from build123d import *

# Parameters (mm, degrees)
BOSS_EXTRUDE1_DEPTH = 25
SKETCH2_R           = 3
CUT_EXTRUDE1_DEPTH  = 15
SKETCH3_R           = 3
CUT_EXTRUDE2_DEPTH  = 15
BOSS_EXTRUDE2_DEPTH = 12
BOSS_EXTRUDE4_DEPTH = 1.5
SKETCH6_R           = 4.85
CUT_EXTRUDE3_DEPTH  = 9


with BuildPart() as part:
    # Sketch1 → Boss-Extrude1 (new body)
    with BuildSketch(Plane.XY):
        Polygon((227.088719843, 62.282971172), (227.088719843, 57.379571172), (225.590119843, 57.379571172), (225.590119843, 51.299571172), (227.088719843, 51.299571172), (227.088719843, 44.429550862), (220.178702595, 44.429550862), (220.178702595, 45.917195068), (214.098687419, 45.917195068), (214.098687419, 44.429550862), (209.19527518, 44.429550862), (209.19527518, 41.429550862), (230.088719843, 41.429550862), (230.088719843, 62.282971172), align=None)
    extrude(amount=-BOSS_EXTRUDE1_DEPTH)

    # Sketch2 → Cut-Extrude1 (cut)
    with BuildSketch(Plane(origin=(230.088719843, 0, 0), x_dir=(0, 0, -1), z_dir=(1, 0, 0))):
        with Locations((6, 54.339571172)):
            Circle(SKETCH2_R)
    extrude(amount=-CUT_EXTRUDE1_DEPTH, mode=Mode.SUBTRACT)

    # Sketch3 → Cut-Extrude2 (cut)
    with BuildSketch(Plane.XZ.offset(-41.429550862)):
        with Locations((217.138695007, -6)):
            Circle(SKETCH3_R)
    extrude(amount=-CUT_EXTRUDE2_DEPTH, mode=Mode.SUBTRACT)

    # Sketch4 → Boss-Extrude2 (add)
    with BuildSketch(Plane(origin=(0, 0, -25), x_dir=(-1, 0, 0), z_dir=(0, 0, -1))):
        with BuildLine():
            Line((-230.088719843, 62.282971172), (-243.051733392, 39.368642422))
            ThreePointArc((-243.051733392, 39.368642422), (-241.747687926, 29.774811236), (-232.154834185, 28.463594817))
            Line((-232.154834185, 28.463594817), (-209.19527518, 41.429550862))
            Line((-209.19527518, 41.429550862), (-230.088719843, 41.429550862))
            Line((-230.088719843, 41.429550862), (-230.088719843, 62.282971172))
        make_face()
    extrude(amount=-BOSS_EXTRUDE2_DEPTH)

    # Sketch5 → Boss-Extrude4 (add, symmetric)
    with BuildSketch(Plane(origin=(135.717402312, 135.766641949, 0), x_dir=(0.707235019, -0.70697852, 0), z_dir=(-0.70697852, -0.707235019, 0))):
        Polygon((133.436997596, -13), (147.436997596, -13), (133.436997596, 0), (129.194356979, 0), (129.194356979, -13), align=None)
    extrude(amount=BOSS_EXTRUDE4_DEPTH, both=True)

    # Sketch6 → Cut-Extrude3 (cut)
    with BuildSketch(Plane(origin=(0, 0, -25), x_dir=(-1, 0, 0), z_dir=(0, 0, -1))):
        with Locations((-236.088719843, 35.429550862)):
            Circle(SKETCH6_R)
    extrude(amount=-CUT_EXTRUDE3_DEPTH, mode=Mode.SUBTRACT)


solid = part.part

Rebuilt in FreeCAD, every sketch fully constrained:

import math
import FreeCAD as App
import Part
import Sketcher
from FreeCAD import Vector
Q = App.Units.Quantity


def add_polygon(sketch, points):
    """Adds a closed chain of lines whose ends are joined by coincident constraints."""
    first, n = sketch.GeometryCount, len(points)
    for a, b in zip(points, points[1:] + points[:1]):
        sketch.addGeometry(Part.LineSegment(App.Vector(*a, 0), App.Vector(*b, 0)), False)
    for i in range(n):
        sketch.addConstraint(Sketcher.Constraint("Coincident", first + i, 2, first + (i + 1) % n, 1))

doc = App.newDocument("Part")
body = doc.addObject("PartDesign::Body", "Body")

# Sketch on XY plane
sketch1 = doc.addObject("Sketcher::SketchObject", "Sketch")
body.addObject(sketch1)
sketch1.AttachmentSupport = (doc.XY_Plane, [""])
sketch1.MapMode = "FlatFace"
add_polygon(sketch1, [(227.1, 62.3), (227.1, 57.4), (225.6, 57.4), (225.6, 51.3), (227.1, 51.3), (227.1, 44.4), (220.2, 44.4), (220.2, 45.9), (214.1, 45.9), (214.1, 44.4), (209.2, 44.4), (209.2, 41.4), (230.1, 41.4), (230.1, 62.3)])  # lines 0-13
sketch1.addConstraint(Sketcher.Constraint("Vertical", 0))
sketch1.addConstraint(Sketcher.Constraint("Horizontal", 1))
sketch1.addConstraint(Sketcher.Constraint("Vertical", 2))
sketch1.addConstraint(Sketcher.Constraint("Horizontal", 3))
sketch1.addConstraint(Sketcher.Constraint("Vertical", 4))
sketch1.addConstraint(Sketcher.Constraint("Horizontal", 5))
sketch1.addConstraint(Sketcher.Constraint("Vertical", 6))
sketch1.addConstraint(Sketcher.Constraint("Horizontal", 7))
sketch1.addConstraint(Sketcher.Constraint("Vertical", 8))
sketch1.addConstraint(Sketcher.Constraint("Horizontal", 9))
sketch1.addConstraint(Sketcher.Constraint("Vertical", 10))
sketch1.addConstraint(Sketcher.Constraint("Horizontal", 11))
sketch1.addConstraint(Sketcher.Constraint("Vertical", 12))
sketch1.addConstraint(Sketcher.Constraint("Horizontal", 13))
sketch1.addConstraint(Sketcher.Constraint("Horizontal", 5, 2, 8, 2))
sketch1.addConstraint(Sketcher.Constraint("Vertical", 0, 2, 3, 2))
sketch1.addConstraint(Sketcher.Constraint("Equal", 13, 10))
sketch1.addConstraint(Sketcher.Constraint("DistanceX", 13, 2, 13, 1, Q("3 mm")))
sketch1.addConstraint(Sketcher.Constraint("DistanceY", 2, 2, 2, 1, Q("6.08 mm")))
sketch1.addConstraint(Sketcher.Constraint("DistanceX", 1, 2, 1, 1, Q("1.4986 mm")))
sketch1.addConstraint(Sketcher.Constraint("DistanceY", 0, 2, 0, 1, Q("4.9034 mm")))
sketch1.addConstraint(Sketcher.Constraint("DistanceY", 4, 2, 4, 1, Q("6.87002 mm")))
sketch1.addConstraint(Sketcher.Constraint("DistanceX", 5, 2, 5, 1, Q("6.910017 mm")))
sketch1.addConstraint(Sketcher.Constraint("DistanceX", 7, 2, 7, 1, Q("6.080015 mm")))
sketch1.addConstraint(Sketcher.Constraint("DistanceX", 9, 2, 9, 1, Q("4.903412 mm")))
sketch1.addConstraint(Sketcher.Constraint("DistanceY", 6, 1, 6, 2, Q("1.487644 mm")))
sketch1.addConstraint(Sketcher.Constraint("DistanceX", -1, 1, 0, 2, Q("227.08872 mm")))
sketch1.addConstraint(Sketcher.Constraint("DistanceY", -1, 1, 0, 2, Q("57.379571 mm")))
pad1 = doc.addObject("PartDesign::Pad", "Pad")
body.addObject(pad1)
pad1.Profile = sketch1
pad1.Length = 25
pad1.Reversed = True

# Sketch on YZ plane
sketch2 = doc.addObject("Sketcher::SketchObject", "Sketch001")
body.addObject(sketch2)
sketch2.AttachmentSupport = (doc.YZ_Plane, [""])
sketch2.MapMode = "FlatFace"
sketch2.AttachmentOffset = App.Placement(Vector(0, 0, 230.08872), App.Rotation())
sketch2.addGeometry(Part.Circle(Vector(54.3, -6, 0), Vector(0, 0, 1), 3), False)
sketch2.addConstraint(Sketcher.Constraint("Diameter", 0, Q("6 mm")))
sketch2.addConstraint(Sketcher.Constraint("DistanceY", 0, 3, -1, 1, Q("6 mm")))
sketch2.addConstraint(Sketcher.Constraint("DistanceX", -1, 1, 0, 3, Q("54.339571 mm")))
pocket1 = doc.addObject("PartDesign::Pocket", "Pocket")
body.addObject(pocket1)
pocket1.Profile = sketch2
pocket1.Length = 15

# Sketch on XZ plane
sketch3 = doc.addObject("Sketcher::SketchObject", "Sketch002")
body.addObject(sketch3)
sketch3.AttachmentSupport = (doc.XZ_Plane, [""])
sketch3.MapMode = "FlatFace"
sketch3.AttachmentOffset = App.Placement(Vector(0, 0, -41.429551), App.Rotation())
sketch3.addGeometry(Part.Circle(Vector(217.1, -6, 0), Vector(0, 0, 1), 3), False)
sketch3.addConstraint(Sketcher.Constraint("Diameter", 0, Q("6 mm")))
sketch3.addConstraint(Sketcher.Constraint("DistanceY", 0, 3, -1, 1, Q("6 mm")))
sketch3.addConstraint(Sketcher.Constraint("DistanceX", -1, 1, 0, 3, Q("217.138695 mm")))
pocket2 = doc.addObject("PartDesign::Pocket", "Pocket001")
body.addObject(pocket2)
pocket2.Profile = sketch3
pocket2.Length = 15

# Sketch on XY plane
sketch4 = doc.addObject("Sketcher::SketchObject", "Sketch003")
body.addObject(sketch4)
sketch4.AttachmentSupport = (doc.XY_Plane, [""])
sketch4.MapMode = "FlatFace"
sketch4.AttachmentOffset = App.Placement(Vector(0, 0, -25), App.Rotation())
sketch4.addGeometry(Part.LineSegment(Vector(230, 62, 0), Vector(243, 39, 0)), False)
sketch4.addGeometry(Part.ArcOfCircle(Part.Circle(Vector(236, 35, 0), Vector(0, 0, 1), 8), math.radians(-119), math.radians(29)), False)
sketch4.addGeometry(Part.LineSegment(Vector(232, 28, 0), Vector(209, 41, 0)), False)
sketch4.addGeometry(Part.LineSegment(Vector(209, 41, 0), Vector(230, 41, 0)), False)
sketch4.addGeometry(Part.LineSegment(Vector(230, 41, 0), Vector(230, 62, 0)), False)
sketch4.addConstraint(Sketcher.Constraint("Tangent", 0, 2, 1, 2))
sketch4.addConstraint(Sketcher.Constraint("Tangent", 1, 1, 2, 1))
sketch4.addConstraint(Sketcher.Constraint("Coincident", 2, 2, 3, 1))
sketch4.addConstraint(Sketcher.Constraint("Coincident", 3, 2, 4, 1))
sketch4.addConstraint(Sketcher.Constraint("Coincident", 4, 2, 0, 1))
sketch4.addConstraint(Sketcher.Constraint("Horizontal", 3))
sketch4.addConstraint(Sketcher.Constraint("Vertical", 4))
sketch4.addConstraint(Sketcher.Constraint("Radius", 1, Q("8 mm")))
sketch4.addConstraint(Sketcher.Constraint("DistanceY", 1, 3, 2, 2, Q("6 mm")))
sketch4.addConstraint(Sketcher.Constraint("DistanceX", 3, 2, 1, 3, Q("6 mm")))
sketch4.addConstraint(Sketcher.Constraint("DistanceY", 4, 1, 4, 2, Q("20.85342 mm")))
sketch4.addConstraint(Sketcher.Constraint("DistanceX", 1, 1, 0, 2, Q("10.896899 mm")))
sketch4.addConstraint(Sketcher.Constraint("DistanceX", -1, 1, 1, 3, Q("236.08872 mm")))
sketch4.addConstraint(Sketcher.Constraint("DistanceY", -1, 1, 1, 3, Q("35.429551 mm")))
pad2 = doc.addObject("PartDesign::Pad", "Pad001")
body.addObject(pad2)
pad2.Profile = sketch4
pad2.Length = 12

# Sketch on an angled plane
sketch5 = doc.addObject("Sketcher::SketchObject", "Sketch004")
body.addObject(sketch5)
sketch5.Placement = App.Placement(Vector(135.717402, 135.766642, 0), App.Rotation(Vector(0.707235019, -0.70697852, 0), Vector(0, 0, 1), Vector(-0.70697852, -0.707235019, 0), "ZXY"))
add_polygon(sketch5, [(147.4, -13), (133.4, 0), (129.2, 0), (129.2, -13)])  # lines 0-3
sketch5.addConstraint(Sketcher.Constraint("Horizontal", 1))
sketch5.addConstraint(Sketcher.Constraint("Vertical", 2))
sketch5.addConstraint(Sketcher.Constraint("Horizontal", 3))
sketch5.addConstraint(Sketcher.Constraint("PointOnObject", 0, 2, -1))
sketch5.addConstraint(Sketcher.Constraint("DistanceY", 2, 2, 2, 1, Q("13 mm")))
sketch5.addConstraint(Sketcher.Constraint("DistanceX", 0, 2, 3, 2, Q("14 mm")))
sketch5.addConstraint(Sketcher.Constraint("DistanceX", 1, 2, 1, 1, Q("4.242641 mm")))
sketch5.addConstraint(Sketcher.Constraint("DistanceX", -1, 1, 0, 2, Q("133.436998 mm")))
pad3 = doc.addObject("PartDesign::Pad", "Pad002")
body.addObject(pad3)
pad3.Profile = sketch5
pad3.Length = 3
pad3.Midplane = True

# Sketch on XY plane
sketch6 = doc.addObject("Sketcher::SketchObject", "Sketch005")
body.addObject(sketch6)
sketch6.AttachmentSupport = (doc.XY_Plane, [""])
sketch6.MapMode = "FlatFace"
sketch6.AttachmentOffset = App.Placement(Vector(0, 0, -25), App.Rotation())
sketch6.addGeometry(Part.Circle(Vector(236.1, 35.4, 0), Vector(0, 0, 1), 4.8), False)
sketch6.addConstraint(Sketcher.Constraint("Diameter", 0, Q("9.7 mm")))
sketch6.addConstraint(Sketcher.Constraint("DistanceX", -1, 1, 0, 3, Q("236.08872 mm")))
sketch6.addConstraint(Sketcher.Constraint("DistanceY", -1, 1, 0, 3, Q("35.429551 mm")))
pocket3 = doc.addObject("PartDesign::Pocket", "Pocket002")
body.addObject(pocket3)
pocket3.Profile = sketch6
pocket3.Length = 9
pocket3.Reversed = True

doc.recompute()
